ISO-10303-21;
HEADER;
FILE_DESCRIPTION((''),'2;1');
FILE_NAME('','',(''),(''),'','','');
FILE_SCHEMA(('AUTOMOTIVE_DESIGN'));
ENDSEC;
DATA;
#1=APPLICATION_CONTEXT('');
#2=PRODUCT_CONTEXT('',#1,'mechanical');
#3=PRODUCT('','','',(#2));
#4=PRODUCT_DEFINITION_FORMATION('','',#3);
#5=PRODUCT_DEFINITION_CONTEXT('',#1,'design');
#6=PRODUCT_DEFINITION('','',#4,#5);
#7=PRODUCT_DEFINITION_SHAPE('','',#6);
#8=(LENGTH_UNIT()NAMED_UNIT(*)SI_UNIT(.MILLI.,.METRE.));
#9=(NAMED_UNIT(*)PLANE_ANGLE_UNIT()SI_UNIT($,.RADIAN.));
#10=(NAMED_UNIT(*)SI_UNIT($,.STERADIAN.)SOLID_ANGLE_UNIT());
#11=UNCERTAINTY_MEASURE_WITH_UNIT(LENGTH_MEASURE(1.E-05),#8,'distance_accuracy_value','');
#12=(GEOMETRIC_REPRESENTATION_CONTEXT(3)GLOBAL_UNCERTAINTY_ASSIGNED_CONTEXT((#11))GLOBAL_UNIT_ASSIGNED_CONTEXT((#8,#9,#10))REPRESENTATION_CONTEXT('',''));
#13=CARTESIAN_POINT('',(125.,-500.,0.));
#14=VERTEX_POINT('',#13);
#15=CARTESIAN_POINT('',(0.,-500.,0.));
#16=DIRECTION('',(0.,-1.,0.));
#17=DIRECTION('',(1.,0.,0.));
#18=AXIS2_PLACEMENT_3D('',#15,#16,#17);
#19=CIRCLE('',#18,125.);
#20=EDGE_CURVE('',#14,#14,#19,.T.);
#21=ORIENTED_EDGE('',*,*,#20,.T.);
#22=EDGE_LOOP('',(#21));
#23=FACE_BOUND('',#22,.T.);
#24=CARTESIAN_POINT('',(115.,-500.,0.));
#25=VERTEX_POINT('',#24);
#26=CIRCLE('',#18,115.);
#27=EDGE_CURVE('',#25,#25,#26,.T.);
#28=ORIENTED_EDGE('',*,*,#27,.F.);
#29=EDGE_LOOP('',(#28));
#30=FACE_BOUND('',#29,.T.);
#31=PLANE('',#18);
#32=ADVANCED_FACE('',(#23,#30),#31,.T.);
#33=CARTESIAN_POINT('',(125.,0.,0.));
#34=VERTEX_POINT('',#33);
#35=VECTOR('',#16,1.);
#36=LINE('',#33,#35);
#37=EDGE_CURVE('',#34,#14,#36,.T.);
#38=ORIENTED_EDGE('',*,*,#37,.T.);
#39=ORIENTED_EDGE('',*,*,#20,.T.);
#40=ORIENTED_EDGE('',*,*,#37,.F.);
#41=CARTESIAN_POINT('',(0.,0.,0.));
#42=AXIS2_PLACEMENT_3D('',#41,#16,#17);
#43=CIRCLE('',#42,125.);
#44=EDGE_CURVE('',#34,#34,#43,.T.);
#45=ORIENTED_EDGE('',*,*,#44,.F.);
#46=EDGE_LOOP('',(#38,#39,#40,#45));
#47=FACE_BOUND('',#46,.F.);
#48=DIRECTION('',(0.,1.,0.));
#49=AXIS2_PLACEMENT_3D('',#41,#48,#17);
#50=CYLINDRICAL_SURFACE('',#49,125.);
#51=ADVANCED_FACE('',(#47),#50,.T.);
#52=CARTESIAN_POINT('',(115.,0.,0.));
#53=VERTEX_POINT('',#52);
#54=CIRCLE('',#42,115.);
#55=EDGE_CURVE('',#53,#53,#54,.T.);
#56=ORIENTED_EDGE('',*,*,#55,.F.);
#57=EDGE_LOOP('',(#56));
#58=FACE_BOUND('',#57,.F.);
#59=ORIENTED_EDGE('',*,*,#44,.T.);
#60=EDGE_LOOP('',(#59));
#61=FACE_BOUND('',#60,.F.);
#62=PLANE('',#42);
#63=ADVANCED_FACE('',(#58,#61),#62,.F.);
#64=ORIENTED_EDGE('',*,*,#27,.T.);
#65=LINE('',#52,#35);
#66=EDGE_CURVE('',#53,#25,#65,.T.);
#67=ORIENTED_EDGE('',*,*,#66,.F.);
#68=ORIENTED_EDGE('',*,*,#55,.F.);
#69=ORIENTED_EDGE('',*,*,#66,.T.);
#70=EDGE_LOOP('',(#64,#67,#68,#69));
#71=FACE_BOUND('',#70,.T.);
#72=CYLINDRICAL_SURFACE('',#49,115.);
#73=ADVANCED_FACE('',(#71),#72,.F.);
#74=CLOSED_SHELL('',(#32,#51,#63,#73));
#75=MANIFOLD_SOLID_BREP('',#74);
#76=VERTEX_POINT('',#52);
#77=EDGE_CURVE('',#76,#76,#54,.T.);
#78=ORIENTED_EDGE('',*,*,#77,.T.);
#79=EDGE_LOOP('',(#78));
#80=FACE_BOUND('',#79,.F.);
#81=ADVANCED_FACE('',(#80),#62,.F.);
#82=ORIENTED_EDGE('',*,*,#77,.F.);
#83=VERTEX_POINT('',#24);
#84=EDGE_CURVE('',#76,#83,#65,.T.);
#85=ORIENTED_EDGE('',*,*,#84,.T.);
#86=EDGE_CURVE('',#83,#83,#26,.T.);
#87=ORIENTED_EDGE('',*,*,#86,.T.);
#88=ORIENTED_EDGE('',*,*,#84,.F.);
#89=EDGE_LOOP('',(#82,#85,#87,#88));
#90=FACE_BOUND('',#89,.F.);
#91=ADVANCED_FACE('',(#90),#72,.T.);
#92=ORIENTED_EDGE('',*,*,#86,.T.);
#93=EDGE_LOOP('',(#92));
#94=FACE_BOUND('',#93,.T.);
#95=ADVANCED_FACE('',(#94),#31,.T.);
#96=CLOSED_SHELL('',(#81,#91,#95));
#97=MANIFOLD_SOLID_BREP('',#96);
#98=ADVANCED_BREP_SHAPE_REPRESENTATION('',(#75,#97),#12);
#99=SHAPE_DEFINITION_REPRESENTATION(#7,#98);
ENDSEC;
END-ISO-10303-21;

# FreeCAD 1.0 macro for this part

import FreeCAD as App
import Part
import Sketcher
from FreeCAD import Vector
Q = App.Units.Quantity


def faces_at(feature, points):
    """Names of the faces that lie closest to the given points."""
    faces = feature.Shape.Faces
    near = lambda p: min(range(len(faces)), key=lambda i: faces[i].distToShape(Part.Vertex(*p))[0])
    return sorted({f"Face{near(p) + 1}" for p in points})

doc = App.newDocument("Part")
body = doc.addObject("PartDesign::Body", "Body")

# Sketch on XZ plane
sketch1 = body.newObject("Sketcher::SketchObject", "Sketch")
sketch1.AttachmentSupport = (doc.getObject("XZ_Plane"), [""])
sketch1.MapMode = "FlatFace"
sketch1.addGeometry(Part.Circle(Vector(0, 0, 0), Vector(0, 0, 1), 125), False)
sketch1.addConstraint([
    Sketcher.Constraint("Coincident", 0, 3, -1, 1),
    Sketcher.Constraint("Diameter", 0, Q("250 mm")),
])
pad1 = body.newObject("PartDesign::Pad", "Pad")
pad1.Profile = sketch1
pad1.Length = 500
doc.recompute()

thickness = body.newObject("PartDesign::Thickness", "Thickness")
thickness.Base = (pad1, faces_at(pad1, [(0, -500, 0), (0, 0, 0)]))
thickness.Value = 10
thickness.Reversed = True
thickness.Join = "Arc"
body2 = doc.addObject("PartDesign::Body", "Body001")

# Sketch on XZ plane
sketch2 = body2.newObject("Sketcher::SketchObject", "Sketch001")
sketch2.AttachmentSupport = (doc.getObject("XZ_Plane001"), [""])
sketch2.MapMode = "FlatFace"
sketch2.addGeometry(Part.Circle(Vector(0, 0, 0), Vector(0, 0, 1), 115), False)
sketch2.addConstraint([
    Sketcher.Constraint("Coincident", 0, 3, -1, 1),
    Sketcher.Constraint("Diameter", 0, Q("230 mm")),
])
pad2 = body2.newObject("PartDesign::Pad", "Pad001")
pad2.Profile = sketch2
pad2.Length = 500

doc.recompute()
